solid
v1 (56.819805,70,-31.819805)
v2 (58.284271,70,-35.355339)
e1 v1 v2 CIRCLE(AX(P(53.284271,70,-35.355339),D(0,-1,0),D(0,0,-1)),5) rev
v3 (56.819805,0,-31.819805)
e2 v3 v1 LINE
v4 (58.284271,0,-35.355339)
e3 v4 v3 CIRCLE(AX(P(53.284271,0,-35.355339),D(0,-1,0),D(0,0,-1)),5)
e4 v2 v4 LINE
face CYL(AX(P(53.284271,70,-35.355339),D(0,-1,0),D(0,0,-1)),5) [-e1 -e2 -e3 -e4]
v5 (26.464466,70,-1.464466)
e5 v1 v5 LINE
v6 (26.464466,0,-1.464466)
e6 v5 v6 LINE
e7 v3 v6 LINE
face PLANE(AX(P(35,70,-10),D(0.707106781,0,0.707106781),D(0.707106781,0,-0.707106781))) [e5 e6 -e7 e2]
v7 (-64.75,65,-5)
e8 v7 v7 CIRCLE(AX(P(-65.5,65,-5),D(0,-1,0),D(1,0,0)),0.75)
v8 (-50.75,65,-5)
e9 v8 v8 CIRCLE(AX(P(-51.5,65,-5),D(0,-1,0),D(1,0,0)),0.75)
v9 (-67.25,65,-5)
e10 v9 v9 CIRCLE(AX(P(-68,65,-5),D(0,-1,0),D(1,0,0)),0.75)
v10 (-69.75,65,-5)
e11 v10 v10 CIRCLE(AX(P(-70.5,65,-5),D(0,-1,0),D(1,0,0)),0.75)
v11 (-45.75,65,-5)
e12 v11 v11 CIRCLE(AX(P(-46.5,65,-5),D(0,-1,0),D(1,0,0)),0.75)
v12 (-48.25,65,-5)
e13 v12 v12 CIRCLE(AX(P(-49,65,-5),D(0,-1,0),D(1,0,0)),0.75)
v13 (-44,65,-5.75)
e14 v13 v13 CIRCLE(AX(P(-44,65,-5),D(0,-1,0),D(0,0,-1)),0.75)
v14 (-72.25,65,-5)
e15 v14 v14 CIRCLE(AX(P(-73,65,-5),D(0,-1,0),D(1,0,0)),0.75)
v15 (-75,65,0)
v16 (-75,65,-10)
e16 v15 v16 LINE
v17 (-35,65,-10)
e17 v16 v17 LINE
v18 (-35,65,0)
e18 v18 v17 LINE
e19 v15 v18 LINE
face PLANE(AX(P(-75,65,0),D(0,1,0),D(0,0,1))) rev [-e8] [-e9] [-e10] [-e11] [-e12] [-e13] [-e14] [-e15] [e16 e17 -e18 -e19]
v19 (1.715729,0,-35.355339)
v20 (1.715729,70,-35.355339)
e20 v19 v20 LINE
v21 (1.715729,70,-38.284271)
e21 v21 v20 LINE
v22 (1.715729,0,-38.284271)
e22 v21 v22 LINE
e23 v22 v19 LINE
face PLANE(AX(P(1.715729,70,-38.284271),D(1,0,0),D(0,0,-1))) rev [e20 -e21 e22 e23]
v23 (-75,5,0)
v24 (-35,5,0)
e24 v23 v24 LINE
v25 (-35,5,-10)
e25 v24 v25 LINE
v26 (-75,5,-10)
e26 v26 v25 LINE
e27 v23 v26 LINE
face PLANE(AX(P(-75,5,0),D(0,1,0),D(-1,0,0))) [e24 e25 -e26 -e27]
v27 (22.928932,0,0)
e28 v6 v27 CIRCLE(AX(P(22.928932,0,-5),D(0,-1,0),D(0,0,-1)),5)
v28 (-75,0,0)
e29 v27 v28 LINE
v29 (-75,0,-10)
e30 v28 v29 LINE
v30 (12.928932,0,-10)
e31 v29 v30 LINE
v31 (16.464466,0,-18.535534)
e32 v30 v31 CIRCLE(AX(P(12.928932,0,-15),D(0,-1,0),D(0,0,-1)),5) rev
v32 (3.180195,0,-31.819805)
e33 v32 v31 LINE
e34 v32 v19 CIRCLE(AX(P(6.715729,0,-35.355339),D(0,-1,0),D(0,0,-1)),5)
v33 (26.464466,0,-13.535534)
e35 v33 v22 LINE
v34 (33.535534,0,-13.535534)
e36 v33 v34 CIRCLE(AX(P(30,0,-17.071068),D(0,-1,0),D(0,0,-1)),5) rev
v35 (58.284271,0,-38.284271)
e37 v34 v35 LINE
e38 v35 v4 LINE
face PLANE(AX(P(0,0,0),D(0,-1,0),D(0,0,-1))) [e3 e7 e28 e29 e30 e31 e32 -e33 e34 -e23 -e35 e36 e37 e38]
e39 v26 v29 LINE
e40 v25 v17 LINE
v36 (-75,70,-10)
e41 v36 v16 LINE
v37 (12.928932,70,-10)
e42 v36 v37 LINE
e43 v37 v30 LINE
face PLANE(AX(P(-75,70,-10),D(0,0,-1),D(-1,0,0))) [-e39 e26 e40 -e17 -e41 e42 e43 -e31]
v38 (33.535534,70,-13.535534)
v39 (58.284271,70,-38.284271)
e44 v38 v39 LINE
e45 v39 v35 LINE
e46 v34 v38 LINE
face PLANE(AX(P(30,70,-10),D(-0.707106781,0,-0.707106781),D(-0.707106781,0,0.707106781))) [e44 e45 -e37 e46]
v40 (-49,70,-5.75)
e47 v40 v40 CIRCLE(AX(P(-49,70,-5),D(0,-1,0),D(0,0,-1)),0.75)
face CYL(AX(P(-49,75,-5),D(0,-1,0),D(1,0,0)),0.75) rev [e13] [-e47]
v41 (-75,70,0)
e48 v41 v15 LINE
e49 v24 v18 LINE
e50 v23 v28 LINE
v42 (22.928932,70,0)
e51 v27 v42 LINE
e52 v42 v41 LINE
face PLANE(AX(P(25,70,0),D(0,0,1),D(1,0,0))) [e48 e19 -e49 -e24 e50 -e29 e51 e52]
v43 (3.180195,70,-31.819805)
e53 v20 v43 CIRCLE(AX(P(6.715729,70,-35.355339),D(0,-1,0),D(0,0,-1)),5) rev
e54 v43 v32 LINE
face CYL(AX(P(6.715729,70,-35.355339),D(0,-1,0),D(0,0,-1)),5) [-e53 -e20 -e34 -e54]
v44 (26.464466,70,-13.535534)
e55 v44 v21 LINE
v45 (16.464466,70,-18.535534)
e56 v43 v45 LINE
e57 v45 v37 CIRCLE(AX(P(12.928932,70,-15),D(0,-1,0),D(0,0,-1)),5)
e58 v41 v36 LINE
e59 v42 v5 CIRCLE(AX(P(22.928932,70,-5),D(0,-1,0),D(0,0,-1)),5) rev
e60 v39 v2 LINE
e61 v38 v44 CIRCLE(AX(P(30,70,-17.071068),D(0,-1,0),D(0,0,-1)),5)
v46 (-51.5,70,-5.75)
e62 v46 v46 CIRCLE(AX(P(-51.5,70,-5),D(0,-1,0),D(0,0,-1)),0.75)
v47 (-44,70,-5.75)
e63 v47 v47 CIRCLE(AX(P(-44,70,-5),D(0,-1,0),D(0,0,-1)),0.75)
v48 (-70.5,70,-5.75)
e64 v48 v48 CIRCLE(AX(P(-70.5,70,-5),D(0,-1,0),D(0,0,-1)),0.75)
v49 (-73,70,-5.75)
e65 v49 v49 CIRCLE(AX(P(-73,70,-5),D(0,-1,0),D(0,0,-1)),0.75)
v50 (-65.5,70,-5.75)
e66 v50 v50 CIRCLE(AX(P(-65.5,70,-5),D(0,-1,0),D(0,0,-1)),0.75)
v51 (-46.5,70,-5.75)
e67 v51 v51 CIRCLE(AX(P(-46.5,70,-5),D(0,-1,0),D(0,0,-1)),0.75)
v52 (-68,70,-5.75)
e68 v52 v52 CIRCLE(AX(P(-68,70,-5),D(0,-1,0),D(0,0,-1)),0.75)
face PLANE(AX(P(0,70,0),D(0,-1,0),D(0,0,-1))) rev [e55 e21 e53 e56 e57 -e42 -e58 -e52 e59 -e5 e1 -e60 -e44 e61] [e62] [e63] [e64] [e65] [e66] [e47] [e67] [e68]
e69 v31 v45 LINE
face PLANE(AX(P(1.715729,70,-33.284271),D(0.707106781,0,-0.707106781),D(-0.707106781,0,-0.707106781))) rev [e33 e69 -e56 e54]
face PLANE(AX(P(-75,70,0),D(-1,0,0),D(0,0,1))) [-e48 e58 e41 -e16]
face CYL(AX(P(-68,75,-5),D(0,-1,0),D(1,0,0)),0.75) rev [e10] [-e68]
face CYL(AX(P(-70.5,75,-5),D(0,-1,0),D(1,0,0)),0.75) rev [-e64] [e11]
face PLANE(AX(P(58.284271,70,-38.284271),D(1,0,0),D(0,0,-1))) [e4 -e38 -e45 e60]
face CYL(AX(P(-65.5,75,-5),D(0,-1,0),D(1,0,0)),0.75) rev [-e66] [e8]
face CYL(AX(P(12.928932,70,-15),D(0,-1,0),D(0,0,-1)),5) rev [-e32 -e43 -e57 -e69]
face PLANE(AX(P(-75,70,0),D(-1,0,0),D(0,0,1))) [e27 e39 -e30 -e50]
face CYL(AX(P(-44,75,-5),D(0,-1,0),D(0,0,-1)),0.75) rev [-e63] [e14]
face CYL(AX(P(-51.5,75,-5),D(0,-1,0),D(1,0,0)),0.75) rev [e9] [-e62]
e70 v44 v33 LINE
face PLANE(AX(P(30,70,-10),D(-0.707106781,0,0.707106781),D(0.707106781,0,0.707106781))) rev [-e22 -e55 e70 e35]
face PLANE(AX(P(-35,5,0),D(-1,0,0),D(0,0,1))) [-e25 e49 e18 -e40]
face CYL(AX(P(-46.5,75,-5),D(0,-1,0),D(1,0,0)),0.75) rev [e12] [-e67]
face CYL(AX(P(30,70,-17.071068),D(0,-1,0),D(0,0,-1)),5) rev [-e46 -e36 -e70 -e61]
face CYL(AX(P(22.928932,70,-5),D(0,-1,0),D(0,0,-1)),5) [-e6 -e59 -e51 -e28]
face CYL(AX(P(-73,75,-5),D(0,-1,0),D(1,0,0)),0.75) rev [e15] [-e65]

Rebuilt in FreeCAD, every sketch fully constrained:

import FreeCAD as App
import Part
import Sketcher

V = App.Vector


def edges_at(feature, points):
    """Names of the edges that pass closest to the given points."""
    edges = feature.Shape.Edges
    near = lambda p: min(range(len(edges)), key=lambda i: edges[i].distToShape(Part.Vertex(*p))[0])
    return sorted({f"Edge{near(p) + 1}" for p in points})


def add_polygon(sketch, points):
    """Adds a closed chain of lines whose ends are joined by coincident constraints."""
    first, n = sketch.GeometryCount, len(points)
    for a, b in zip(points, points[1:] + points[:1]):
        sketch.addGeometry(Part.LineSegment(App.Vector(*a, 0), App.Vector(*b, 0)), False)
    for i in range(n):
        sketch.addConstraint(Sketcher.Constraint("Coincident", first + i, 2, first + (i + 1) % n, 1))

doc = App.newDocument("Part")
body = doc.addObject("PartDesign::Body", "Body")

sketch1 = body.newObject("Sketcher::SketchObject", "Sketch")
sketch1.AttachmentSupport = (doc.getObject("XZ_Plane"), [""])
sketch1.MapMode = "FlatFace"
add_polygon(sketch1, [(-75, -10), (-75, 0), (25, 0), (58.284271, -33.284271), (58.284271, -38.284271), (30, -10), (1.715729, -38.284271), (1.715729, -33.284271), (25, -10)])
sketch1.addConstraint(Sketcher.Constraint("Vertical", 0))
sketch1.addConstraint(Sketcher.Constraint("Horizontal", 1))
sketch1.addConstraint(Sketcher.Constraint("Vertical", 3))
sketch1.addConstraint(Sketcher.Constraint("Vertical", 6))
sketch1.addConstraint(Sketcher.Constraint("Horizontal", 8))
sketch1.addConstraint(Sketcher.Constraint("PointOnObject", 0, 2, -1))
sketch1.addConstraint(Sketcher.Constraint("Parallel", 2, 4))
sketch1.addConstraint(Sketcher.Constraint("Perpendicular", 4, 5))
sketch1.addConstraint(Sketcher.Constraint("Parallel", 5, 7))
sketch1.addConstraint(Sketcher.Constraint("Horizontal", 3, 2, 5, 2))
sketch1.addConstraint(Sketcher.Constraint("Horizontal", 2, 2, 6, 2))
sketch1.addConstraint(Sketcher.Constraint("Horizontal", 4, 2, 7, 2))
sketch1.addConstraint(Sketcher.Constraint("Vertical", 1, 2, 7, 2))
sketch1.addConstraint(Sketcher.Constraint("Equal", 4, 5))
sketch1.addConstraint(Sketcher.Constraint("DistanceX", 1, 1, 1, 2, 100.0))
sketch1.addConstraint(Sketcher.Constraint("DistanceY", 0, 1, 0, 2, 10.0))
sketch1.addConstraint(Sketcher.Constraint("Distance", 4, 40.0))
sketch1.addConstraint(Sketcher.Constraint("DistanceX", 0, 2, -1, 1, 75.0))
pad1 = body.newObject("PartDesign::Pad", "Pad")
pad1.Profile = sketch1
pad1.Length = 70
pad1.Reversed = True
doc.recompute()

fillet = body.newObject("PartDesign::Fillet", "Fillet")
fillet.Base = (pad1, edges_at(pad1, [(30, 35, -10)]))
fillet.Radius = 5
doc.recompute()

fillet2 = body.newObject("PartDesign::Fillet", "Fillet001")
fillet2.Base = (fillet, edges_at(fillet, [(25, 35, -10)]))
fillet2.Radius = 5
doc.recompute()

fillet3 = body.newObject("PartDesign::Fillet", "Fillet002")
fillet3.Base = (fillet2, edges_at(fillet2, [(58.284, 35, -33.284), (1.716, 35, -33.284)]))
fillet3.Radius = 5
doc.recompute()

fillet4 = body.newObject("PartDesign::Fillet", "Fillet003")
fillet4.Base = (fillet3, edges_at(fillet3, [(25, 35, 0)]))
fillet4.Radius = 5

sketch2 = body.newObject("Sketcher::SketchObject", "Sketch001")
sketch2.AttachmentSupport = (doc.getObject("XY_Plane"), [""])
sketch2.MapMode = "FlatFace"
sketch2.AttachmentOffset = App.Placement(V(0, 0, -10), App.Rotation())
add_polygon(sketch2, [(-45, 65), (-45, 5), (-75, 5), (-75, 65)])
sketch2.addConstraint(Sketcher.Constraint("Vertical", 0))
sketch2.addConstraint(Sketcher.Constraint("Horizontal", 1))
sketch2.addConstraint(Sketcher.Constraint("Vertical", 2))
sketch2.addConstraint(Sketcher.Constraint("Horizontal", 3))
sketch2.addConstraint(Sketcher.Constraint("DistanceX", 1, 2, 1, 1, 30.0))
sketch2.addConstraint(Sketcher.Constraint("DistanceY", 0, 2, 0, 1, 60.0))
sketch2.addConstraint(Sketcher.Constraint("DistanceX", 0, 2, -1, 1, 45.0))
sketch2.addConstraint(Sketcher.Constraint("DistanceY", -1, 1, 0, 2, 5.0))
pocket1 = body.newObject("PartDesign::Pocket", "Pocket")
pocket1.Profile = sketch2
pocket1.Type = "ThroughAll"
pocket1.Reversed = True

sketch3 = body.newObject("Sketcher::SketchObject", "Sketch002")
sketch3.AttachmentSupport = (doc.getObject("XY_Plane"), [""])
sketch3.MapMode = "FlatFace"
sketch3.AttachmentOffset = App.Placement(V(0, 0, -10), App.Rotation())
add_polygon(sketch3, [(-35, 65), (-35, 5), (-45, 5), (-45, 65)])
sketch3.addConstraint(Sketcher.Constraint("Vertical", 0))
sketch3.addConstraint(Sketcher.Constraint("Horizontal", 1))
sketch3.addConstraint(Sketcher.Constraint("Vertical", 2))
sketch3.addConstraint(Sketcher.Constraint("Horizontal", 3))
sketch3.addConstraint(Sketcher.Constraint("DistanceX", 1, 2, 1, 1, 10.0))
sketch3.addConstraint(Sketcher.Constraint("DistanceY", 0, 2, 0, 1, 60.0))
sketch3.addConstraint(Sketcher.Constraint("DistanceX", 0, 2, -1, 1, 35.0))
sketch3.addConstraint(Sketcher.Constraint("DistanceY", -1, 1, 0, 2, 5.0))
pocket2 = body.newObject("PartDesign::Pocket", "Pocket001")
pocket2.Profile = sketch3
pocket2.Type = "ThroughAll"
pocket2.Reversed = True

sketch4 = body.newObject("Sketcher::SketchObject", "Sketch003")
sketch4.AttachmentSupport = (doc.getObject("XZ_Plane"), [""])
sketch4.MapMode = "FlatFace"
sketch4.AttachmentOffset = App.Placement(V(0, 0, -65), App.Rotation())
sketch4.addGeometry(Part.Circle(V(-44, -5, 0), V(0, 0, 1), 0.75), False)
sketch4.addConstraint(Sketcher.Constraint("Diameter", 0, 1.5))
sketch4.addConstraint(Sketcher.Constraint("DistanceX", 0, 3, -1, 1, 44.0))
sketch4.addConstraint(Sketcher.Constraint("DistanceY", 0, 3, -1, 1, 5.0))
pocket3 = body.newObject("PartDesign::Pocket", "Pocket002")
pocket3.Profile = sketch4
pocket3.Length = 10

sketch5 = body.newObject("Sketcher::SketchObject", "Sketch004")
sketch5.AttachmentSupport = (doc.getObject("XZ_Plane"), [""])
sketch5.MapMode = "FlatFace"
sketch5.AttachmentOffset = App.Placement(V(0, 0, -65), App.Rotation())
sketch5.addGeometry(Part.Circle(V(-73, -5, 0), V(0, 0, 1), 0.75), False)
sketch5.addGeometry(Part.Circle(V(-68, -5, 0), V(0, 0, 1), 0.75), False)
sketch5.addGeometry(Part.Circle(V(-70.5, -5, 0), V(0, 0, 1), 0.75), False)
sketch5.addGeometry(Part.Circle(V(-65.5, -5, 0), V(0, 0, 1), 0.75), False)
sketch5.addGeometry(Part.Circle(V(-46.5, -5, 0), V(0, 0, 1), 0.75), False)
sketch5.addGeometry(Part.Circle(V(-49, -5, 0), V(0, 0, 1), 0.75), False)
sketch5.addGeometry(Part.Circle(V(-51.5, -5, 0), V(0, 0, 1), 0.75), False)
sketch5.addConstraint(Sketcher.Constraint("Equal", 0, 1))
sketch5.addConstraint(Sketcher.Constraint("Equal", 1, 2))
sketch5.addConstraint(Sketcher.Constraint("Equal", 2, 3))
sketch5.addConstraint(Sketcher.Constraint("Equal", 3, 4))
sketch5.addConstraint(Sketcher.Constraint("Equal", 4, 5))
sketch5.addConstraint(Sketcher.Constraint("Equal", 5, 6))
sketch5.addConstraint(Sketcher.Constraint("Horizontal", 0, 3, 1, 3))
sketch5.addConstraint(Sketcher.Constraint("Horizontal", 1, 3, 2, 3))
sketch5.addConstraint(Sketcher.Constraint("Horizontal", 2, 3, 3, 3))
sketch5.addConstraint(Sketcher.Constraint("Horizontal", 3, 3, 4, 3))
sketch5.addConstraint(Sketcher.Constraint("Horizontal", 4, 3, 5, 3))
sketch5.addConstraint(Sketcher.Constraint("Horizontal", 5, 3, 6, 3))
sketch5.addConstraint(Sketcher.Constraint("Diameter", 0, 1.5))
sketch5.addConstraint(Sketcher.Constraint("DistanceX", 0, 3, -1, 1, 73.0))
sketch5.addConstraint(Sketcher.Constraint("DistanceY", 0, 3, -1, 1, 5.0))
sketch5.addConstraint(Sketcher.Constraint("DistanceX", 1, 3, -1, 1, 68.0))
sketch5.addConstraint(Sketcher.Constraint("DistanceX", 5, 3, -1, 1, 49.0))
sketch5.addConstraint(Sketcher.Constraint("DistanceX", 2, 3, 3, 3, 5.0))
sketch5.addConstraint(Sketcher.Constraint("DistanceX", 3, 3, 4, 3, 19.0))
sketch5.addConstraint(Sketcher.Constraint("DistanceX", 6, 3, 4, 3, 5.0))
sketch5.addConstraint(Sketcher.Constraint("DistanceX", 2, 3, -1, 1, 70.5))
pocket4 = body.newObject("PartDesign::Pocket", "Pocket003")
pocket4.Profile = sketch5
pocket4.Length = 10

doc.recompute()
